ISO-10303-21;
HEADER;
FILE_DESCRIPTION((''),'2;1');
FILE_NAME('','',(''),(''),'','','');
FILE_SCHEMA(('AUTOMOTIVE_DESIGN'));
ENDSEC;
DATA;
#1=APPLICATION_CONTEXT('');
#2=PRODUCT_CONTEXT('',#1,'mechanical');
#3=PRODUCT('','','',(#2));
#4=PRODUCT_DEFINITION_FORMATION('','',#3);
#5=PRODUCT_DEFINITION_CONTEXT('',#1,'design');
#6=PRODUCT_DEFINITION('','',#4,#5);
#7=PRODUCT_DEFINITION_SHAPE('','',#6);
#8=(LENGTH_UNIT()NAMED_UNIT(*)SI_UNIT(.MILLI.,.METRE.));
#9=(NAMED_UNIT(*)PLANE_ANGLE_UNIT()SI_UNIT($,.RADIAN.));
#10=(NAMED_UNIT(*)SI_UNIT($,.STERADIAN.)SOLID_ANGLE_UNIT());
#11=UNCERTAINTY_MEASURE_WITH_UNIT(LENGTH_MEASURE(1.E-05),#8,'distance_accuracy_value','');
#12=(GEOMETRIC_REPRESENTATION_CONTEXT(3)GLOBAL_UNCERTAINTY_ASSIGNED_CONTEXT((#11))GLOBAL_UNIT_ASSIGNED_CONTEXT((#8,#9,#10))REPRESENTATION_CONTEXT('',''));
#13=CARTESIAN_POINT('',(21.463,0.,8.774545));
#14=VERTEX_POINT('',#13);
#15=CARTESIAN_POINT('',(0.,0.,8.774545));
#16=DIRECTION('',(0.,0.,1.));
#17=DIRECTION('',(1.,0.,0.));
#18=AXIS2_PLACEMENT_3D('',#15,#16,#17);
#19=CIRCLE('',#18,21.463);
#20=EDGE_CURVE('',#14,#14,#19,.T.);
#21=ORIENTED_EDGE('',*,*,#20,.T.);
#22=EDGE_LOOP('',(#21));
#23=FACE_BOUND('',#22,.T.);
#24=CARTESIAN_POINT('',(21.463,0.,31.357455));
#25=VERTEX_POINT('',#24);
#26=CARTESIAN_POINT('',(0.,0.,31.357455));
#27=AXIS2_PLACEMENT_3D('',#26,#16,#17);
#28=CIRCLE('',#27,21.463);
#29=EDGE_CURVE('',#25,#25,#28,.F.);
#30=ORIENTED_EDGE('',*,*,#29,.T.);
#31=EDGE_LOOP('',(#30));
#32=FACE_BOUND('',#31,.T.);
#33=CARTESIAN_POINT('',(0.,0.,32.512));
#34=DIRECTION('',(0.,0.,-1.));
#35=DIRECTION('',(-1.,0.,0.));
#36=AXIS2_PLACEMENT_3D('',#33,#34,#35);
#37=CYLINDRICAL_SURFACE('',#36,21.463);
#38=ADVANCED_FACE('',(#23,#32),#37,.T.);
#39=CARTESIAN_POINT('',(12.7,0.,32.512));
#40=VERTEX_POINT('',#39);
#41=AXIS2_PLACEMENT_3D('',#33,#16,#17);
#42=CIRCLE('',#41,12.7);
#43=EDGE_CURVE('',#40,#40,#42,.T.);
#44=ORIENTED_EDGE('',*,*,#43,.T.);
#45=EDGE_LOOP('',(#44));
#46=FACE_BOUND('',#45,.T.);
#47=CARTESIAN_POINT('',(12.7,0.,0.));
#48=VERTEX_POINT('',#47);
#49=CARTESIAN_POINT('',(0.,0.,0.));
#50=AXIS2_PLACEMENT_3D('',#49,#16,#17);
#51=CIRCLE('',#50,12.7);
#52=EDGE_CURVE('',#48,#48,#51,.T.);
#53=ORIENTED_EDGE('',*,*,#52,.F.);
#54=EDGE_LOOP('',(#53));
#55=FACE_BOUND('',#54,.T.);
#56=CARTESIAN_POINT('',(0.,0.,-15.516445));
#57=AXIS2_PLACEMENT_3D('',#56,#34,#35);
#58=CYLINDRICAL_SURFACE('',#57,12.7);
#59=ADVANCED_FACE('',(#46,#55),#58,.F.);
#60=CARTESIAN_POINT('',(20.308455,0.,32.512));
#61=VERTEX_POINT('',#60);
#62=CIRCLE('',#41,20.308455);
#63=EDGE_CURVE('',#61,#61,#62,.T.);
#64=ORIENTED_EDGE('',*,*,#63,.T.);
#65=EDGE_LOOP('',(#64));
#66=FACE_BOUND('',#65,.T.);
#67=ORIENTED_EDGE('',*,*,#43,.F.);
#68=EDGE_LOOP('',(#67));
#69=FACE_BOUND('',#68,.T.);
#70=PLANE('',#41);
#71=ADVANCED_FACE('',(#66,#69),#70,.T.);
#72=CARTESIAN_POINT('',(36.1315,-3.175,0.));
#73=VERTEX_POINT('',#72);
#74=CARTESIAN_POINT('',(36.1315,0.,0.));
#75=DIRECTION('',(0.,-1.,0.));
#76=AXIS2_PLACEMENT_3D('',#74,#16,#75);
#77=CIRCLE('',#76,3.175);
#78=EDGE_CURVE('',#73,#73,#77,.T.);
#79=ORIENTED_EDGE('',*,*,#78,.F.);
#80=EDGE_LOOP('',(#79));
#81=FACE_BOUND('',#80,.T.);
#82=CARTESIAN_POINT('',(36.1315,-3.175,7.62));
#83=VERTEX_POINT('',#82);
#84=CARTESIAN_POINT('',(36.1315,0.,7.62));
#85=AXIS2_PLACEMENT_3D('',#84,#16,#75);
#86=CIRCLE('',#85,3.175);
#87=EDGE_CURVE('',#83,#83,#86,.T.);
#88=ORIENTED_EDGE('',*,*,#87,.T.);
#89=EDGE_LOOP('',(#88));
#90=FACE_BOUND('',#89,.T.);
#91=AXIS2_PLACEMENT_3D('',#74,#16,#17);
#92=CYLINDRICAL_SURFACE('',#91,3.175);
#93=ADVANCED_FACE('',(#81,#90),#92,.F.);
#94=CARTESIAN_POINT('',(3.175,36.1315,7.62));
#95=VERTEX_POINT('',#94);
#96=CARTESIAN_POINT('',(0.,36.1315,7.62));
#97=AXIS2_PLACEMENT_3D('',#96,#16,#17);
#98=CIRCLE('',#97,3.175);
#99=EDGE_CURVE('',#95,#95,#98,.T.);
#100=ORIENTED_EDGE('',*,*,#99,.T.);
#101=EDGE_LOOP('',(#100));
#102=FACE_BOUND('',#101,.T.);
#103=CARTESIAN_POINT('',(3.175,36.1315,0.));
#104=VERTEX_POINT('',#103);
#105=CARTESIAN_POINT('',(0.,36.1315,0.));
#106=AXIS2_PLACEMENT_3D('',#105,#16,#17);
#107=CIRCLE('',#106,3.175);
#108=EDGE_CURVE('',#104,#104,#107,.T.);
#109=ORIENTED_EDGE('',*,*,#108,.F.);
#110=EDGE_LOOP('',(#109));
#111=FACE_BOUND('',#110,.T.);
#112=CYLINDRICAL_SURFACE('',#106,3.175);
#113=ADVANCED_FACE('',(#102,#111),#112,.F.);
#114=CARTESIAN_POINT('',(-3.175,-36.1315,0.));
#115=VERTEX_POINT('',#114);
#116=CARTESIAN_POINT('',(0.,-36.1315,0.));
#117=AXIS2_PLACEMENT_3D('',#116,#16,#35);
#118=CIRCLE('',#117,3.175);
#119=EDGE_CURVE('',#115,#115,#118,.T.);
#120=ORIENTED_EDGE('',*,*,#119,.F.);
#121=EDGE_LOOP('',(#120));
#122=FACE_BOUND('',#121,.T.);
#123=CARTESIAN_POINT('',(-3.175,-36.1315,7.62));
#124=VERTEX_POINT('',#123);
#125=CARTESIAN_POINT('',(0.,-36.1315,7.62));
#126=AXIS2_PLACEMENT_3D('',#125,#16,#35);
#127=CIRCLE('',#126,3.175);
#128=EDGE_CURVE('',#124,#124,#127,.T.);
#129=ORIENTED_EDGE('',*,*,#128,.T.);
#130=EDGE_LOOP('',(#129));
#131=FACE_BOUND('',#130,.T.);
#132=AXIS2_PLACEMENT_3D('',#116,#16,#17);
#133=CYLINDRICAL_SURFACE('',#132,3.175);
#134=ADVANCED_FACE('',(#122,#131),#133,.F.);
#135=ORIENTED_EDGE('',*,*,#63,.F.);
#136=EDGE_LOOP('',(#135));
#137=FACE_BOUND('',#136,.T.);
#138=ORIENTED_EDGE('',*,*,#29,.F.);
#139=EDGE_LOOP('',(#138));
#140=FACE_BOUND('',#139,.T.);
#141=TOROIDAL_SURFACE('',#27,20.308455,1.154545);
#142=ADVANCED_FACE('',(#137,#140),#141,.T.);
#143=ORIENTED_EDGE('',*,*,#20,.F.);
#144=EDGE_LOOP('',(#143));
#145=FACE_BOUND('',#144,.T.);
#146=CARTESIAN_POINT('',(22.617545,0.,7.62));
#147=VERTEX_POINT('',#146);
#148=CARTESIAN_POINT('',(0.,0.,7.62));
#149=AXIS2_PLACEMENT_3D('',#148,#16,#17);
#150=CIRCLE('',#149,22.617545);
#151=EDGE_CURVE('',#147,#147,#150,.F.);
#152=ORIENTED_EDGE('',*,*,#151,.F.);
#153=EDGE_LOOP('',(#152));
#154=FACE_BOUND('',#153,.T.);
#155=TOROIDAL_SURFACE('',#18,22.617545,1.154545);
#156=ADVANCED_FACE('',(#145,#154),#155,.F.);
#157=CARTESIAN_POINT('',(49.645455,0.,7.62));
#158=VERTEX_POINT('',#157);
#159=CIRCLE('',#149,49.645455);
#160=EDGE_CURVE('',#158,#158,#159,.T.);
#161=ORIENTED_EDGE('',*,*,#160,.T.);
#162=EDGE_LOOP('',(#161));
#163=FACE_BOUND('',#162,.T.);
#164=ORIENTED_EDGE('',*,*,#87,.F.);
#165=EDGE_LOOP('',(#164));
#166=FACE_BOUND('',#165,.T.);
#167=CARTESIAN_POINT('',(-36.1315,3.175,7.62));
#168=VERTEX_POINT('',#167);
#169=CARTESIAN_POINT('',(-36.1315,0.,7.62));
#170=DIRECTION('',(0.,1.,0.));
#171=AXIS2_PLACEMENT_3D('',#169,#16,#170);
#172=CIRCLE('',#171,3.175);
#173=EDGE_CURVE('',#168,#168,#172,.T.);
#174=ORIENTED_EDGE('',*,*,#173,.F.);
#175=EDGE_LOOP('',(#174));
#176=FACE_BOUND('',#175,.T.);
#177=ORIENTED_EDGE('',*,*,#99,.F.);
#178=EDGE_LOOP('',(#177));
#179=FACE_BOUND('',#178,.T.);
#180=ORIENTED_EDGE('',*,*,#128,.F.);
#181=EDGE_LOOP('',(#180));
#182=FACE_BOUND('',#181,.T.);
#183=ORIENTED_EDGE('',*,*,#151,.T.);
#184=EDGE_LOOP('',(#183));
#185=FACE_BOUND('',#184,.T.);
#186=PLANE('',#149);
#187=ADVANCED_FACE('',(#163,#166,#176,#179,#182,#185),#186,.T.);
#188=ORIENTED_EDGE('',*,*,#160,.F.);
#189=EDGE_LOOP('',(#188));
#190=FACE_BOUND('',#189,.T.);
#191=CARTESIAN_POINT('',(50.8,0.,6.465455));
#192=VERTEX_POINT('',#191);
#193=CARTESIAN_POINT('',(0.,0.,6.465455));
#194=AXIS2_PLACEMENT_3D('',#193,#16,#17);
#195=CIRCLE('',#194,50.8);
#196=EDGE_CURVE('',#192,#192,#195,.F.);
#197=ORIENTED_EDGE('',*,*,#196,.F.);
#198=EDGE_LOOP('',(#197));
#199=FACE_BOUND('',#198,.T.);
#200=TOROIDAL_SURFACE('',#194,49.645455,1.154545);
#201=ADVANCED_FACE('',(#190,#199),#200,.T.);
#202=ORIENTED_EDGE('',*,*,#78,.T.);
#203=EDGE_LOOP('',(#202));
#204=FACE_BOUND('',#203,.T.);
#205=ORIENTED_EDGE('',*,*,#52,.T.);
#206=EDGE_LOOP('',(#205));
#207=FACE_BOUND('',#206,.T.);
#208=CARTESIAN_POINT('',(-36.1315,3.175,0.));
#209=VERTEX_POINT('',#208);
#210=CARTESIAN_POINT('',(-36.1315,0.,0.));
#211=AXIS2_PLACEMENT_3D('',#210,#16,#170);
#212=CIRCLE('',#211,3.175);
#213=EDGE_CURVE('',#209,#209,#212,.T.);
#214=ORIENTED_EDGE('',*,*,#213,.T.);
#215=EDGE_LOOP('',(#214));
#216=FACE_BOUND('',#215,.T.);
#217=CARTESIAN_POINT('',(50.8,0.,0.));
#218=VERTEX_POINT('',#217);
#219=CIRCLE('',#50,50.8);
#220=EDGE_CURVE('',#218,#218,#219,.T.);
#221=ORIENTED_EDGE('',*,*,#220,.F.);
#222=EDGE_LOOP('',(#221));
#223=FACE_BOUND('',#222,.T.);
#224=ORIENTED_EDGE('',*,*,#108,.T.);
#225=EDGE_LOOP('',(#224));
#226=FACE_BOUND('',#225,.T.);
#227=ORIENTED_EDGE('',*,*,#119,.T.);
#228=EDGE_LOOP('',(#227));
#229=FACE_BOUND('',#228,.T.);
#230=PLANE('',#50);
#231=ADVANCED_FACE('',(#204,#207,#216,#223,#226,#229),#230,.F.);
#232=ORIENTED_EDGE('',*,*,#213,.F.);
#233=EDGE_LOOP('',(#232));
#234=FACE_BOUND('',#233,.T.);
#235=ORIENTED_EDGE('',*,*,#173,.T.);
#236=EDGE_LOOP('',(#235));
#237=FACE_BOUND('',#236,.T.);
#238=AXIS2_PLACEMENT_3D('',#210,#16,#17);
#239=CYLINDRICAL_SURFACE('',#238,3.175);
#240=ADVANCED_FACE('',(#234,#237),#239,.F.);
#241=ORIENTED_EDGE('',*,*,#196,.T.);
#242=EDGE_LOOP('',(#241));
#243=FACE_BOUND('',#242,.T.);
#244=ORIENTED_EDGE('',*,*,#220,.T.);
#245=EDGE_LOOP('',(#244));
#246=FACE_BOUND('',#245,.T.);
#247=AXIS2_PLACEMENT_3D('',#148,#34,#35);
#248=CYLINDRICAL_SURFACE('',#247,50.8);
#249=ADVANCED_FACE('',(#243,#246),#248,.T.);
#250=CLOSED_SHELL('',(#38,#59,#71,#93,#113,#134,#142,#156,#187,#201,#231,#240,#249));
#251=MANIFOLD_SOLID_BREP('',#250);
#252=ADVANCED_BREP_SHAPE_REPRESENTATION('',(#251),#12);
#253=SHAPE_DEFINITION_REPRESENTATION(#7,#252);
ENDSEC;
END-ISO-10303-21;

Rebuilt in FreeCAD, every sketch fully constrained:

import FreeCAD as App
import Part
import Sketcher
from FreeCAD import Vector
Q = App.Units.Quantity


def edges_at(feature, points):
    """Names of the edges that pass closest to the given points."""
    edges = feature.Shape.Edges
    near = lambda p: min(range(len(edges)), key=lambda i: edges[i].distToShape(Part.Vertex(*p))[0])
    return sorted({f"Edge{near(p) + 1}" for p in points})


def add_polygon(sketch, points):
    """Adds a closed chain of lines whose ends are joined by coincident constraints."""
    first, n = sketch.GeometryCount, len(points)
    for a, b in zip(points, points[1:] + points[:1]):
        sketch.addGeometry(Part.LineSegment(App.Vector(*a, 0), App.Vector(*b, 0)), False)
    for i in range(n):
        sketch.addConstraint(Sketcher.Constraint("Coincident", first + i, 2, first + (i + 1) % n, 1))

doc = App.newDocument("Part")
body = doc.addObject("PartDesign::Body", "Body")

# Sketch on XY plane
sketch1 = body.newObject("Sketcher::SketchObject", "Sketch")
sketch1.AttachmentSupport = (doc.getObject("XY_Plane"), [""])
sketch1.MapMode = "FlatFace"
sketch1.addGeometry(Part.Circle(Vector(0, 0, 0), Vector(0, 0, 1), 51), False)
sketch1.addConstraint([
    Sketcher.Constraint("Coincident", 0, 3, -1, 1),
    Sketcher.Constraint("Diameter", 0, Q("4 in")),
])
pad1 = body.newObject("PartDesign::Pad", "Pad")
pad1.Profile = sketch1
pad1.Length = Q("0.3 in")

# Sketch on XY plane
sketch2 = body.newObject("Sketcher::SketchObject", "Sketch001")
sketch2.AttachmentSupport = (doc.getObject("XY_Plane"), [""])
sketch2.MapMode = "FlatFace"
sketch2.AttachmentOffset = App.Placement(Vector(0, 0, 0.3 * 25.4), App.Rotation())
sketch2.addGeometry(Part.Circle(Vector(0, 0, 0), Vector(0, 0, 1), 21), False)
sketch2.addConstraint([
    Sketcher.Constraint("Coincident", 0, 3, -1, 1),
    Sketcher.Constraint("Diameter", 0, Q("1.69 in")),
])
pad2 = body.newObject("PartDesign::Pad", "Pad001")
pad2.Profile = sketch2
pad2.Length = Q("0.98 in")

# Sketch on XY plane
sketch3 = body.newObject("Sketcher::SketchObject", "Sketch002")
sketch3.AttachmentSupport = (doc.getObject("XY_Plane"), [""])
sketch3.MapMode = "FlatFace"
sketch3.AttachmentOffset = App.Placement(Vector(0, 0, 0.3 * 25.4), App.Rotation())
sketch3.addGeometry(Part.Circle(Vector(0, 36.1, 0), Vector(0, 0, 1), 3.2), False)
sketch3.addConstraint([
    Sketcher.Constraint("PointOnObject", 0, 3, -2),
    Sketcher.Constraint("Diameter", 0, Q("0.25 in")),
    Sketcher.Constraint("DistanceY", -1, 1, 0, 3, Q("1.4225 in")),
])
pocket1 = body.newObject("PartDesign::Pocket", "Pocket")
pocket1.Profile = sketch3
pocket1.Type = "ThroughAll"
doc.recompute()

polarpattern = body.newObject("PartDesign::PolarPattern", "PolarPattern")
polarpattern.Originals = [pocket1]
polarpattern.Axis = (doc.getObject("Z_Axis"), [""])
polarpattern.Angle = 360
polarpattern.Occurrences = 4
body.Tip = polarpattern
doc.recompute()

fillet = body.newObject("PartDesign::Fillet", "Fillet")
fillet.Base = (polarpattern, edges_at(polarpattern, [(-50.8, 0, 7.62), (-21.463, 0, 7.62), (-21.463, 0, 32.512)]))
fillet.Radius = 1.154545

# Sketch on YZ plane
sketch4 = body.newObject("Sketcher::SketchObject", "Sketch003")
sketch4.AttachmentSupport = (doc.getObject("YZ_Plane"), [""])
sketch4.MapMode = "FlatFace"
add_polygon(sketch4, [(13, 64), (0, 64), (0, -16), (13, -16)])  # lines 0-3
sketch4.addConstraint([
    Sketcher.Constraint("Horizontal", 0),
    Sketcher.Constraint("Vertical", 1),
    Sketcher.Constraint("Horizontal", 2),
    Sketcher.Constraint("Vertical", 3),
    Sketcher.Constraint("PointOnObject", 0, 2, -2),
    Sketcher.Constraint("DistanceX", 0, 2, 0, 1, Q("0.5 in")),
    Sketcher.Constraint("DistanceY", 1, 2, 1, 1, Q("79.017488 mm")),
    Sketcher.Constraint("DistanceY", -1, 1, 0, 2, Q("63.501044 mm")),
])
groove = body.newObject("PartDesign::Groove", "Groove")
groove.Profile = sketch4
groove.ReferenceAxis = (sketch4, ["V_Axis"])
groove.Angle = 360

doc.recompute()
